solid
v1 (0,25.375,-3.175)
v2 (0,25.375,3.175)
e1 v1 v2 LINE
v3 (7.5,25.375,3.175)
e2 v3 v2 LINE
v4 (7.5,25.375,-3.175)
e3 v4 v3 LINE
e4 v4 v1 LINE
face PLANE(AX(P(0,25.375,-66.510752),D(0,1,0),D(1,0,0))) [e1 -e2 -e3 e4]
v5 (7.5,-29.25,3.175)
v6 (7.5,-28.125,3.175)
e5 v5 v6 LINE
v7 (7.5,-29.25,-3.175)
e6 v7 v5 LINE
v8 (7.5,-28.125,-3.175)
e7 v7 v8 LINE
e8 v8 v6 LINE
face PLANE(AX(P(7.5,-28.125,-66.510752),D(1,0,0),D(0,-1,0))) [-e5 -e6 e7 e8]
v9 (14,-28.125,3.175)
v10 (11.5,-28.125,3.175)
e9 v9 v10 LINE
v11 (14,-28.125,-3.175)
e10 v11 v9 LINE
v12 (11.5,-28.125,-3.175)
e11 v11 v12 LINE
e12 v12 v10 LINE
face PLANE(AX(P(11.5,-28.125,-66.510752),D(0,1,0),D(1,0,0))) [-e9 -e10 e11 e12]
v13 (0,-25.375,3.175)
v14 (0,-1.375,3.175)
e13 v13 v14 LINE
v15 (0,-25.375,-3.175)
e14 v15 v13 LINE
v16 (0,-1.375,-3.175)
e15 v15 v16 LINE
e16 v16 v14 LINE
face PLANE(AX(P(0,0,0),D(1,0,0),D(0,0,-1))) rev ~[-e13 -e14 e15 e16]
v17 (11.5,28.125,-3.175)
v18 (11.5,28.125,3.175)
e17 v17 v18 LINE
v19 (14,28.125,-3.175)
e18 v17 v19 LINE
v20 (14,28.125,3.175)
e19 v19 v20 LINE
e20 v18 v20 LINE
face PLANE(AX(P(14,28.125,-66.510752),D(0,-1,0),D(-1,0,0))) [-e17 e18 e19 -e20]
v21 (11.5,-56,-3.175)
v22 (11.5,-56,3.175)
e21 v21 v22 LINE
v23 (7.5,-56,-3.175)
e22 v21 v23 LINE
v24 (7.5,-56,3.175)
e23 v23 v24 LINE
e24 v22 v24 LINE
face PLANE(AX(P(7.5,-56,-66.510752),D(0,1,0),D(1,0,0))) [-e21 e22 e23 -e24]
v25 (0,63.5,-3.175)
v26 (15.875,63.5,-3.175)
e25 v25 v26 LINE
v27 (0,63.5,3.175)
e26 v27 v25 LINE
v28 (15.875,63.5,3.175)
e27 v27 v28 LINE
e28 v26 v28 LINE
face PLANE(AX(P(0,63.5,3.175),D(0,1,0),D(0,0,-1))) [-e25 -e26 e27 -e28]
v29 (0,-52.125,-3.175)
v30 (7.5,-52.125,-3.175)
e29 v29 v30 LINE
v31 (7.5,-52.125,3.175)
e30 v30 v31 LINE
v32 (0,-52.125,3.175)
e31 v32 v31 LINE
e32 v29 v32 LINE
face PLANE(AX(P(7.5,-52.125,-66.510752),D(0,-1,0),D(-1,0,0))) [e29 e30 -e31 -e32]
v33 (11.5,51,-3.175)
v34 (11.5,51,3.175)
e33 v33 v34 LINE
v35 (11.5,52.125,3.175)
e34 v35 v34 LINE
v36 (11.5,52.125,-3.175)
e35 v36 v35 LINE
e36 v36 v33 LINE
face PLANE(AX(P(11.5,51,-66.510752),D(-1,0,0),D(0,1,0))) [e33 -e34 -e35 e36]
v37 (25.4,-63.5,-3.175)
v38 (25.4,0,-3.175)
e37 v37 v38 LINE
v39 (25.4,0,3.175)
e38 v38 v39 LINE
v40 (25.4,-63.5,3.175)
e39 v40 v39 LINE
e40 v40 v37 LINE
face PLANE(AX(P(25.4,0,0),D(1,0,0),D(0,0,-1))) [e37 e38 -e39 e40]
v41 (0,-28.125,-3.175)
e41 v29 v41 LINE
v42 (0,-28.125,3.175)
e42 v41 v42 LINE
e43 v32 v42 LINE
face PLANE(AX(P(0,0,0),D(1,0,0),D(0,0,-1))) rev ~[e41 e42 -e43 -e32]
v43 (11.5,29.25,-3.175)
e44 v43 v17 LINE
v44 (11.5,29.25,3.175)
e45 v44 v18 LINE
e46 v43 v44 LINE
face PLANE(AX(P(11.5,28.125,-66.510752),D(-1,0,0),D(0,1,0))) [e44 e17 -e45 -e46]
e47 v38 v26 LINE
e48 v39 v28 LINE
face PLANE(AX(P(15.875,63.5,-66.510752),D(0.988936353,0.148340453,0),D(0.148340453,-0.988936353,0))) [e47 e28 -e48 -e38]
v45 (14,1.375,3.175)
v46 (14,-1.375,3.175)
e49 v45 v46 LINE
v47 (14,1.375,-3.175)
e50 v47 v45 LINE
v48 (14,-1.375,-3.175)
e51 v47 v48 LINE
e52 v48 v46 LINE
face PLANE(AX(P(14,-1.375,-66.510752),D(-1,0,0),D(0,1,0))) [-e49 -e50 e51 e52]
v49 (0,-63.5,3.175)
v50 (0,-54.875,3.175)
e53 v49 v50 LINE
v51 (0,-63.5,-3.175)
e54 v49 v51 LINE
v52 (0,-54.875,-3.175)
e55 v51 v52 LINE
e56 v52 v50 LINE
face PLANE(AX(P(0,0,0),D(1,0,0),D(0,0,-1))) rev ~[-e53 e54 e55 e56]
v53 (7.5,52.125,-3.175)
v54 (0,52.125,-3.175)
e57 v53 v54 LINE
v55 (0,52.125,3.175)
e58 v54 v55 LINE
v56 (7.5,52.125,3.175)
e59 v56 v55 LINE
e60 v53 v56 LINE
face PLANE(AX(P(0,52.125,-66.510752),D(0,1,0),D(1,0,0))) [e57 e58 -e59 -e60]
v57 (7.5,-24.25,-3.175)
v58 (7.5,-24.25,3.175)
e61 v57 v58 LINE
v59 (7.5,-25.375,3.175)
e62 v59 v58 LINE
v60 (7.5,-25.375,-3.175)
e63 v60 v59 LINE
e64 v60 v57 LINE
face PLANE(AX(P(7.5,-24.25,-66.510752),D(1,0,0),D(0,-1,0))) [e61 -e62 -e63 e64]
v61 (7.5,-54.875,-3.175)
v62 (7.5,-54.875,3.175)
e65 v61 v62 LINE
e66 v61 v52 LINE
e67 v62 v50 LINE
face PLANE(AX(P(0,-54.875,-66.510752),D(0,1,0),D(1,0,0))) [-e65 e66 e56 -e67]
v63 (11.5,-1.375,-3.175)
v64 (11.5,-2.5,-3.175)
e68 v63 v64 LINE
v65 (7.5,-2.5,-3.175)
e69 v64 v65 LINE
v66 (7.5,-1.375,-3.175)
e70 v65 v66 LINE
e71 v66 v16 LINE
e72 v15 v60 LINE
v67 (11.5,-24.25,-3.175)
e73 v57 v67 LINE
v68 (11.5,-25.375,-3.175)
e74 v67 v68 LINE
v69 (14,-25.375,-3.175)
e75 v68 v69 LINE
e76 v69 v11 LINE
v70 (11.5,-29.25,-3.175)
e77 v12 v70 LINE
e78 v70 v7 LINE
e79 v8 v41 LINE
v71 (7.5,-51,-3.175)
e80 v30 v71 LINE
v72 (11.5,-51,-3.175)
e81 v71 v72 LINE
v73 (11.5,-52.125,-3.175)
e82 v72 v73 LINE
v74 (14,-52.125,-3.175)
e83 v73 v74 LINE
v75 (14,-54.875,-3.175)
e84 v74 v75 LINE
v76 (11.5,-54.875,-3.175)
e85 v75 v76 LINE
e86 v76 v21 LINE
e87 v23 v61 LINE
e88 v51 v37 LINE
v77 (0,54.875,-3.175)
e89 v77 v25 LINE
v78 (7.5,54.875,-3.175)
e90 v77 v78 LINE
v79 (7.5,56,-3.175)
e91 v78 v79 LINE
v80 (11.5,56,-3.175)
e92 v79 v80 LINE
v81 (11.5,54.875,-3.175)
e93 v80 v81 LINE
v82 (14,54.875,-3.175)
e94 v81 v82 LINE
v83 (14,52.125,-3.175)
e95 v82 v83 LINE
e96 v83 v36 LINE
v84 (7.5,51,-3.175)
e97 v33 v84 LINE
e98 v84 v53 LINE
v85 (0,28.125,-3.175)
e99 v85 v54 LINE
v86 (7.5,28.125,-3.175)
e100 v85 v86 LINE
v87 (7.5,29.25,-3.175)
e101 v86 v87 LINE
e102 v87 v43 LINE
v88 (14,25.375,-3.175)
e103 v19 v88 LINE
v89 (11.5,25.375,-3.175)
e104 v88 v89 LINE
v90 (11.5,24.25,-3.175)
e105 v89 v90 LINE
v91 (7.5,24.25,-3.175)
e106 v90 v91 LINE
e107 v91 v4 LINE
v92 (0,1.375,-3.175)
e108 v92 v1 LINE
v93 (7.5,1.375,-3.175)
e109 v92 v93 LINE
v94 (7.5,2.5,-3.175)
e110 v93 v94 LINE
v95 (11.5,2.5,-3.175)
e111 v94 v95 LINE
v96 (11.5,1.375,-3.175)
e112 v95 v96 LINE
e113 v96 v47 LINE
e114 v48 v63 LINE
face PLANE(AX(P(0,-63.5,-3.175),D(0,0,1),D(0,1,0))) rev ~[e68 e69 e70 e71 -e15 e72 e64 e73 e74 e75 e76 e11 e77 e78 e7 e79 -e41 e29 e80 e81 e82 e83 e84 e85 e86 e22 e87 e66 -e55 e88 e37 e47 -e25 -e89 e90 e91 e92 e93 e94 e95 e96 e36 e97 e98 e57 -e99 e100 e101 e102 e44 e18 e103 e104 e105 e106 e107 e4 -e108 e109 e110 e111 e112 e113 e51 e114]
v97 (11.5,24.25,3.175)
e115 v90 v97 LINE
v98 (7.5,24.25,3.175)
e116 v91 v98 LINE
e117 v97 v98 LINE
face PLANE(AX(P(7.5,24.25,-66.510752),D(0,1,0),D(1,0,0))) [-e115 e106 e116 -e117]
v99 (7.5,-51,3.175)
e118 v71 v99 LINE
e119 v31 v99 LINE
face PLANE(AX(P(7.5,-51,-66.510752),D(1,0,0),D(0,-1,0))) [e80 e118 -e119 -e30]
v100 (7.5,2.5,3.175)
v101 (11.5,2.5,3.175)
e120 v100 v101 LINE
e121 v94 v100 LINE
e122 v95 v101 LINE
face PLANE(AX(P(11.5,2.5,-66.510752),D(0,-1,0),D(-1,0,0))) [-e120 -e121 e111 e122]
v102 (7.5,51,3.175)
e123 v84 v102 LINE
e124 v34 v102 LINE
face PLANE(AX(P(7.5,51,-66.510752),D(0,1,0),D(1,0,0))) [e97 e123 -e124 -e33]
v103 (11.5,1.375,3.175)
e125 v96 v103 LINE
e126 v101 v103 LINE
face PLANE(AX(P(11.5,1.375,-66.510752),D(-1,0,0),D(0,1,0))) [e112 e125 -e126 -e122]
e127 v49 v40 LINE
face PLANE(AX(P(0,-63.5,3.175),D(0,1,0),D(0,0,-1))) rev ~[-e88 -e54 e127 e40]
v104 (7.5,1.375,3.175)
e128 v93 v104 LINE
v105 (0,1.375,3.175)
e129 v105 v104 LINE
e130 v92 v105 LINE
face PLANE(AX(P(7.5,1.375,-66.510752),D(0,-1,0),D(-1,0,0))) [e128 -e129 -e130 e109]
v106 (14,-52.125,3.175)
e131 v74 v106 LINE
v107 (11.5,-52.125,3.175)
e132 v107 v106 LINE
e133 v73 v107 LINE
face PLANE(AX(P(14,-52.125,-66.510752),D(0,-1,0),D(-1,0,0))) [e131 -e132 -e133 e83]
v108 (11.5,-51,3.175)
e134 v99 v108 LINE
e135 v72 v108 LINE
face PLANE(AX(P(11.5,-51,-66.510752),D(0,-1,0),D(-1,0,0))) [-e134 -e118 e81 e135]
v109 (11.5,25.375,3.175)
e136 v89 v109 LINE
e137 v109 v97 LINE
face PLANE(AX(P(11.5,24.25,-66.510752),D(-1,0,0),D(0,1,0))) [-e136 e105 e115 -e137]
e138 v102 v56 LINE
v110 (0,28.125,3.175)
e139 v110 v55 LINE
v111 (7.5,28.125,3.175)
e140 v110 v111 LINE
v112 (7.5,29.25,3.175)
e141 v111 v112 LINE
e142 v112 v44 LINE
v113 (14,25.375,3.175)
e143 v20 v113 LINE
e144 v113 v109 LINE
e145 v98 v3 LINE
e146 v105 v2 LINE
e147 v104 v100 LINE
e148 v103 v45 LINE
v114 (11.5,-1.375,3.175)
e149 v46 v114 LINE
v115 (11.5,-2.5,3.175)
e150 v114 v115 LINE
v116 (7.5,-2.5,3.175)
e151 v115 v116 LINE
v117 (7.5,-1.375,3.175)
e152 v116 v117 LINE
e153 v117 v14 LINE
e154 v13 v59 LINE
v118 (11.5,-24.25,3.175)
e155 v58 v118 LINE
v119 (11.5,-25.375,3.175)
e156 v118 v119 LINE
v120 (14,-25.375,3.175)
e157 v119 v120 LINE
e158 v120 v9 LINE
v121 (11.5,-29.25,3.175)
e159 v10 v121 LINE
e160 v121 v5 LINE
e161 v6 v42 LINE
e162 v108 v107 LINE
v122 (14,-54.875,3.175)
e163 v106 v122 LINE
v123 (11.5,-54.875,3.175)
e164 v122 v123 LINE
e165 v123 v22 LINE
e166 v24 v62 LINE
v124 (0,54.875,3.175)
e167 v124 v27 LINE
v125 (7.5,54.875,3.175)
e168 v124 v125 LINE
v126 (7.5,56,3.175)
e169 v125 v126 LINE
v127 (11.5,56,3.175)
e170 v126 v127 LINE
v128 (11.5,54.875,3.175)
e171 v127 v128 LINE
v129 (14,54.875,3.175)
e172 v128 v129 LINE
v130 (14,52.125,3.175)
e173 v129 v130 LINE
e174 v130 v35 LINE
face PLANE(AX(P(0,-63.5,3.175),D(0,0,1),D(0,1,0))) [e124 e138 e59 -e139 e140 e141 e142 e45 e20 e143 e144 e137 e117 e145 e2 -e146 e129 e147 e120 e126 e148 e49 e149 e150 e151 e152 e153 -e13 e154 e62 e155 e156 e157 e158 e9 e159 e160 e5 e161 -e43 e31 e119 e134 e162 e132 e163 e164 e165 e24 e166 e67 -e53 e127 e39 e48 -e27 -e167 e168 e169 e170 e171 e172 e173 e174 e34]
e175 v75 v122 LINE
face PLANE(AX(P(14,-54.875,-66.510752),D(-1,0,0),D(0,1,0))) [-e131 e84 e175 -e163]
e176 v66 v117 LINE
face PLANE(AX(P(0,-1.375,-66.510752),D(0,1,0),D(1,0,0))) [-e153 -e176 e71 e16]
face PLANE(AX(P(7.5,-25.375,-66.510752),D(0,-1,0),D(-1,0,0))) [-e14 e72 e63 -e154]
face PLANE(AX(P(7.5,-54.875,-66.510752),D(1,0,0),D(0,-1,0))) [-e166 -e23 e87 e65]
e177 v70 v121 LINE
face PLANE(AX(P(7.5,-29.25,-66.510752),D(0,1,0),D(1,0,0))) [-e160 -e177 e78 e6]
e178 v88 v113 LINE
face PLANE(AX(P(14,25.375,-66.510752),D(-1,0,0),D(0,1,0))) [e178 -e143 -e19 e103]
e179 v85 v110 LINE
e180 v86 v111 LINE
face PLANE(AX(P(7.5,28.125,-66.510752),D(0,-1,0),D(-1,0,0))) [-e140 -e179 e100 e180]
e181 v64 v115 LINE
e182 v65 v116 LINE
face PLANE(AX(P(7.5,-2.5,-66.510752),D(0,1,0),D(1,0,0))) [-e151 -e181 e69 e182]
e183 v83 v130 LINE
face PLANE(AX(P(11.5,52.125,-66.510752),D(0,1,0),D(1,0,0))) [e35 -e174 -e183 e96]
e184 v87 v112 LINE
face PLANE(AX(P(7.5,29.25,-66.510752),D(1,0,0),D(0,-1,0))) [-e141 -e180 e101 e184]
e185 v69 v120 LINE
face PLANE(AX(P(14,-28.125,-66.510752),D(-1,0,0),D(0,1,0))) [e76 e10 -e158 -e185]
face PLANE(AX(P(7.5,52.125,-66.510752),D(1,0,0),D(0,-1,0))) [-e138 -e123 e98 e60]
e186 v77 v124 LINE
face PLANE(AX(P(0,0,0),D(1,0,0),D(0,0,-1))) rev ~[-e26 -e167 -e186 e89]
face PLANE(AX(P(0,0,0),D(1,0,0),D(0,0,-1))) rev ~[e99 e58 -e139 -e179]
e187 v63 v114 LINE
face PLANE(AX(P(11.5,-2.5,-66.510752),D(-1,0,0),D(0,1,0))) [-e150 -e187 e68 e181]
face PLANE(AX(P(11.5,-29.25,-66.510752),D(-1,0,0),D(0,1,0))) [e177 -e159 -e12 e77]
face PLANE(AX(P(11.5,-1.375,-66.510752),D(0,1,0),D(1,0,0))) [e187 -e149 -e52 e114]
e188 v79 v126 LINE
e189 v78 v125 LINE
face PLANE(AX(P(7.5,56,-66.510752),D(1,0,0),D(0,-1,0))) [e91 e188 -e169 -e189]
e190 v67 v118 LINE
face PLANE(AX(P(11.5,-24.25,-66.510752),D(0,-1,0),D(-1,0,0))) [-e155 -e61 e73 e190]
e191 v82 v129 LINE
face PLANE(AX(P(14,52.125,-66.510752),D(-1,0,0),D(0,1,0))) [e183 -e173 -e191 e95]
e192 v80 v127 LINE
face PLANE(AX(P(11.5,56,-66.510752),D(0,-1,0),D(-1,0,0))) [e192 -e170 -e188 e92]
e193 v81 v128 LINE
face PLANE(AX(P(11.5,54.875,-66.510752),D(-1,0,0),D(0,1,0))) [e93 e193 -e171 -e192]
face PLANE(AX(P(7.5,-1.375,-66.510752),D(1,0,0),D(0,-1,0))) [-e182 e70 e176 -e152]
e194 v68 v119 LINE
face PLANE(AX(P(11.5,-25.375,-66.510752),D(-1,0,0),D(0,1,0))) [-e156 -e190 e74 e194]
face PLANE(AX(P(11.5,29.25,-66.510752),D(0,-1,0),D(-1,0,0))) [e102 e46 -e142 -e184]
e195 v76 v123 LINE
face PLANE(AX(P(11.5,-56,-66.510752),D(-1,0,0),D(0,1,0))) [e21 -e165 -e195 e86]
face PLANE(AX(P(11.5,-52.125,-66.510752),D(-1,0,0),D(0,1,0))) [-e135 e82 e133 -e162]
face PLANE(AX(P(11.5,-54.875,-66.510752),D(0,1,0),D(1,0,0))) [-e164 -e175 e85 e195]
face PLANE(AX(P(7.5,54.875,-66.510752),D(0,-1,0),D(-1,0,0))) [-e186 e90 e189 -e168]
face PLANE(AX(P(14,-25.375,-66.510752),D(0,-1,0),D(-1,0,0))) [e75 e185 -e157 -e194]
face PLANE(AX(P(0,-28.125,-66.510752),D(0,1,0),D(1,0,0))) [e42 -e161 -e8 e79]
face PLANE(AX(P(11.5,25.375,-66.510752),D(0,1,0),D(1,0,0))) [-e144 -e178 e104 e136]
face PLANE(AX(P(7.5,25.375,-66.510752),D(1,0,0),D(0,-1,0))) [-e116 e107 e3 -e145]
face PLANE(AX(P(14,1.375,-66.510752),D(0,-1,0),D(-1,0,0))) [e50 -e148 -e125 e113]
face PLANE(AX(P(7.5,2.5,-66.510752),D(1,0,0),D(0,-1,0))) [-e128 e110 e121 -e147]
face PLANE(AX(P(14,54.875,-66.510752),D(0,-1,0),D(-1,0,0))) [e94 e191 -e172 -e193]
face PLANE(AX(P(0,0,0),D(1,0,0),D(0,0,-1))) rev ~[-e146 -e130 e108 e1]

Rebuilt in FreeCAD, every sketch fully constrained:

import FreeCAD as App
import Part
import Sketcher
Q = App.Units.Quantity


def add_polygon(sketch, points):
    """Adds a closed chain of lines whose ends are joined by coincident constraints."""
    first, n = sketch.GeometryCount, len(points)
    for a, b in zip(points, points[1:] + points[:1]):
        sketch.addGeometry(Part.LineSegment(App.Vector(*a, 0), App.Vector(*b, 0)), False)
    for i in range(n):
        sketch.addConstraint(Sketcher.Constraint("Coincident", first + i, 2, first + (i + 1) % n, 1))

doc = App.newDocument("Part")
body = doc.addObject("PartDesign::Body", "Body")

# Sketch on YZ plane
sketch1 = doc.addObject("Sketcher::SketchObject", "Sketch")
body.addObject(sketch1)
sketch1.AttachmentSupport = (doc.YZ_Plane, [""])
sketch1.MapMode = "FlatFace"
add_polygon(sketch1, [(64, 3), (-64, 3), (-64, -3), (64, -3)])  # lines 0-3
sketch1.addConstraint([
    Sketcher.Constraint("Horizontal", 0),
    Sketcher.Constraint("Vertical", 1),
    Sketcher.Constraint("Horizontal", 2),
    Sketcher.Constraint("Vertical", 3),
    Sketcher.Constraint("Symmetric", 0, 2, 2, 2, -1, 1),
    Sketcher.Constraint("DistanceX", 0, 2, 0, 1, Q("5 in")),
    Sketcher.Constraint("DistanceY", 1, 2, 1, 1, Q("0.25 in")),
])
pad1 = doc.addObject("PartDesign::Pad", "Pad")
body.addObject(pad1)
pad1.Profile = sketch1
pad1.Length = Q("1 in")

# Sketch on XY plane
sketch2 = doc.addObject("Sketcher::SketchObject", "Sketch001")
body.addObject(sketch2)
sketch2.AttachmentSupport = (doc.XY_Plane, [""])
sketch2.MapMode = "FlatFace"
sketch2.AttachmentOffset = App.Placement(App.Vector(0, 0, 0.125 * 25.4), App.Rotation())
add_polygon(sketch2, [(7.5, 54.9), (0, 54.9), (0, 52.1), (7.5, 52.1), (7.5, 51), (11.5, 51), (11.5, 52.1), (14, 52.1), (14, 54.9), (11.5, 54.9), (11.5, 56), (7.5, 56)])  # lines 0-11
add_polygon(sketch2, [(25.4, 63.5), (15.9, 63.5), (25.4, 0)])  # lines 12-14
add_polygon(sketch2, [(7.5, 28.1), (0, 28.1), (0, 25.4), (7.5, 25.4), (7.5, 24.2), (11.5, 24.2), (11.5, 25.4), (14, 25.4), (14, 28.1), (11.5, 28.1), (11.5, 29.2), (7.5, 29.2)])  # lines 15-26
add_polygon(sketch2, [(7.5, 1.4), (0, 1.4), (0, -1.4), (7.5, -1.4), (7.5, -2.5), (11.5, -2.5), (11.5, -1.4), (14, -1.4), (14, 1.4), (11.5, 1.4), (11.5, 2.5), (7.5, 2.5)])  # lines 27-38
add_polygon(sketch2, [(7.5, -25.4), (0, -25.4), (0, -28.1), (7.5, -28.1), (7.5, -29.2), (11.5, -29.2), (11.5, -28.1), (14, -28.1), (14, -25.4), (11.5, -25.4), (11.5, -24.2), (7.5, -24.2)])  # lines 39-50
add_polygon(sketch2, [(7.5, -52.1), (0, -52.1), (0, -54.9), (7.5, -54.9), (7.5, -56), (11.5, -56), (11.5, -54.9), (14, -54.9), (14, -52.1), (11.5, -52.1), (11.5, -51), (7.5, -51)])  # lines 51-62
sketch2.addConstraint([
    Sketcher.Constraint("Horizontal", 0),
    Sketcher.Constraint("Vertical", 1),
    Sketcher.Constraint("Horizontal", 2),
    Sketcher.Constraint("Vertical", 3),
    Sketcher.Constraint("Horizontal", 4),
    Sketcher.Constraint("Vertical", 5),
    Sketcher.Constraint("Horizontal", 6),
    Sketcher.Constraint("Vertical", 7),
    Sketcher.Constraint("Horizontal", 8),
    Sketcher.Constraint("Vertical", 9),
    Sketcher.Constraint("Horizontal", 10),
    Sketcher.Constraint("Vertical", 11),
    Sketcher.Constraint("Horizontal", 12),
    Sketcher.Constraint("Vertical", 14),
    Sketcher.Constraint("Horizontal", 15),
    Sketcher.Constraint("Vertical", 16),
    Sketcher.Constraint("Horizontal", 17),
    Sketcher.Constraint("Vertical", 18),
    Sketcher.Constraint("Horizontal", 19),
    Sketcher.Constraint("Vertical", 20),
    Sketcher.Constraint("Horizontal", 21),
    Sketcher.Constraint("Vertical", 22),
    Sketcher.Constraint("Horizontal", 23),
    Sketcher.Constraint("Vertical", 24),
    Sketcher.Constraint("Horizontal", 25),
    Sketcher.Constraint("Vertical", 26),
    Sketcher.Constraint("Horizontal", 27),
    Sketcher.Constraint("Vertical", 28),
    Sketcher.Constraint("Horizontal", 29),
    Sketcher.Constraint("Vertical", 30),
    Sketcher.Constraint("Horizontal", 31),
    Sketcher.Constraint("Vertical", 32),
    Sketcher.Constraint("Horizontal", 33),
    Sketcher.Constraint("Vertical", 34),
    Sketcher.Constraint("Horizontal", 35),
    Sketcher.Constraint("Vertical", 36),
    Sketcher.Constraint("Horizontal", 37),
    Sketcher.Constraint("Vertical", 38),
    Sketcher.Constraint("Horizontal", 39),
    Sketcher.Constraint("Vertical", 40),
    Sketcher.Constraint("Horizontal", 41),
    Sketcher.Constraint("Vertical", 42),
    Sketcher.Constraint("Horizontal", 43),
    Sketcher.Constraint("Vertical", 44),
    Sketcher.Constraint("Horizontal", 45),
    Sketcher.Constraint("Vertical", 46),
    Sketcher.Constraint("Horizontal", 47),
    Sketcher.Constraint("Vertical", 48),
    Sketcher.Constraint("Horizontal", 49),
    Sketcher.Constraint("Vertical", 50),
    Sketcher.Constraint("Horizontal", 51),
    Sketcher.Constraint("Vertical", 52),
    Sketcher.Constraint("Horizontal", 53),
    Sketcher.Constraint("Vertical", 54),
    Sketcher.Constraint("Horizontal", 55),
    Sketcher.Constraint("Vertical", 56),
    Sketcher.Constraint("Horizontal", 57),
    Sketcher.Constraint("Vertical", 58),
    Sketcher.Constraint("Horizontal", 59),
    Sketcher.Constraint("Vertical", 60),
    Sketcher.Constraint("Horizontal", 61),
    Sketcher.Constraint("Vertical", 62),
    Sketcher.Constraint("Symmetric", 27, 2, 28, 2, -1, 1),
    Sketcher.Constraint("Symmetric", 16, 2, 39, 2, -1, 1),
    Sketcher.Constraint("Symmetric", 1, 2, 51, 2, -1, 1),
    Sketcher.Constraint("Symmetric", 32, 2, 35, 2, -1),
    Sketcher.Constraint("Symmetric", 30, 2, 37, 2, -1),
    Sketcher.Constraint("Symmetric", 15, 2, 40, 2, -1),
    Sketcher.Constraint("Symmetric", 25, 2, 42, 2, -1),
    Sketcher.Constraint("Symmetric", 23, 2, 44, 2, -1),
    Sketcher.Constraint("Symmetric", 21, 2, 46, 2, -1),
    Sketcher.Constraint("Symmetric", 19, 2, 48, 2, -1),
    Sketcher.Constraint("Symmetric", 0, 2, 52, 2, -1),
    Sketcher.Constraint("Symmetric", 10, 2, 54, 2, -1),
    Sketcher.Constraint("Symmetric", 8, 2, 56, 2, -1),
    Sketcher.Constraint("Symmetric", 6, 2, 58, 2, -1),
    Sketcher.Constraint("Symmetric", 4, 2, 60, 2, -1),
    Sketcher.Constraint("PointOnObject", 13, 2, -1),
    Sketcher.Constraint("Horizontal", 2, 2, 5, 2),
    Sketcher.Constraint("Horizontal", 0, 2, 7, 2),
    Sketcher.Constraint("Horizontal", 17, 2, 20, 2),
    Sketcher.Constraint("Horizontal", 15, 2, 22, 2),
    Sketcher.Constraint("Horizontal", 29, 2, 32, 2),
    Sketcher.Constraint("Vertical", 5, 2, 8, 2),
    Sketcher.Constraint("Vertical", 3, 2, 10, 2),
    Sketcher.Constraint("Vertical", 11, 2, 17, 2),
    Sketcher.Constraint("Vertical", 9, 2, 19, 2),
    Sketcher.Constraint("Vertical", 7, 2, 21, 2),
    Sketcher.Constraint("Vertical", 20, 2, 23, 2),
    Sketcher.Constraint("Vertical", 18, 2, 25, 2),
    Sketcher.Constraint("Vertical", 26, 2, 29, 2),
    Sketcher.Constraint("Vertical", 24, 2, 31, 2),
    Sketcher.Constraint("Vertical", 22, 2, 33, 2),
    Sketcher.Constraint("Vertical", 42, 2, 49, 2),
    Sketcher.Constraint("Vertical", 54, 2, 61, 2),
    Sketcher.Constraint("Equal", 5, 9),
    Sketcher.Constraint("Equal", 7, 16),
    Sketcher.Constraint("Equal", 11, 18),
    Sketcher.Constraint("Equal", 20, 24),
    Sketcher.Constraint("Equal", 22, 28),
    Sketcher.Constraint("Equal", 26, 30),
    Sketcher.Constraint("DistanceY", 14, 1, 14, 2, Q("2.5 in")),
    Sketcher.Constraint("DistanceX", -1, 1, 13, 2, Q("1 in")),
    Sketcher.Constraint("DistanceX", 12, 2, 12, 1, Q("0.375 in")),
    Sketcher.Constraint("DistanceX", 0, 2, 0, 1, 7.5),
    Sketcher.Constraint("DistanceX", 4, 1, 4, 2, 4.0),
    Sketcher.Constraint("DistanceX", 6, 1, 6, 2, 2.5),
    Sketcher.Constraint("DistanceY", 1, 2, 1, 1, 2.75),
    Sketcher.Constraint("DistanceY", 3, 2, 3, 1, 1.125),
    Sketcher.Constraint("DistanceY", -1, 1, 0, 2, 54.875),
    Sketcher.Constraint("DistanceY", -1, 1, 15, 2, 28.125),
])
pocket1 = doc.addObject("PartDesign::Pocket", "Pocket")
body.addObject(pocket1)
pocket1.Profile = sketch2
pocket1.Type = "ThroughAll"
pocket1.Midplane = True

doc.recompute()
